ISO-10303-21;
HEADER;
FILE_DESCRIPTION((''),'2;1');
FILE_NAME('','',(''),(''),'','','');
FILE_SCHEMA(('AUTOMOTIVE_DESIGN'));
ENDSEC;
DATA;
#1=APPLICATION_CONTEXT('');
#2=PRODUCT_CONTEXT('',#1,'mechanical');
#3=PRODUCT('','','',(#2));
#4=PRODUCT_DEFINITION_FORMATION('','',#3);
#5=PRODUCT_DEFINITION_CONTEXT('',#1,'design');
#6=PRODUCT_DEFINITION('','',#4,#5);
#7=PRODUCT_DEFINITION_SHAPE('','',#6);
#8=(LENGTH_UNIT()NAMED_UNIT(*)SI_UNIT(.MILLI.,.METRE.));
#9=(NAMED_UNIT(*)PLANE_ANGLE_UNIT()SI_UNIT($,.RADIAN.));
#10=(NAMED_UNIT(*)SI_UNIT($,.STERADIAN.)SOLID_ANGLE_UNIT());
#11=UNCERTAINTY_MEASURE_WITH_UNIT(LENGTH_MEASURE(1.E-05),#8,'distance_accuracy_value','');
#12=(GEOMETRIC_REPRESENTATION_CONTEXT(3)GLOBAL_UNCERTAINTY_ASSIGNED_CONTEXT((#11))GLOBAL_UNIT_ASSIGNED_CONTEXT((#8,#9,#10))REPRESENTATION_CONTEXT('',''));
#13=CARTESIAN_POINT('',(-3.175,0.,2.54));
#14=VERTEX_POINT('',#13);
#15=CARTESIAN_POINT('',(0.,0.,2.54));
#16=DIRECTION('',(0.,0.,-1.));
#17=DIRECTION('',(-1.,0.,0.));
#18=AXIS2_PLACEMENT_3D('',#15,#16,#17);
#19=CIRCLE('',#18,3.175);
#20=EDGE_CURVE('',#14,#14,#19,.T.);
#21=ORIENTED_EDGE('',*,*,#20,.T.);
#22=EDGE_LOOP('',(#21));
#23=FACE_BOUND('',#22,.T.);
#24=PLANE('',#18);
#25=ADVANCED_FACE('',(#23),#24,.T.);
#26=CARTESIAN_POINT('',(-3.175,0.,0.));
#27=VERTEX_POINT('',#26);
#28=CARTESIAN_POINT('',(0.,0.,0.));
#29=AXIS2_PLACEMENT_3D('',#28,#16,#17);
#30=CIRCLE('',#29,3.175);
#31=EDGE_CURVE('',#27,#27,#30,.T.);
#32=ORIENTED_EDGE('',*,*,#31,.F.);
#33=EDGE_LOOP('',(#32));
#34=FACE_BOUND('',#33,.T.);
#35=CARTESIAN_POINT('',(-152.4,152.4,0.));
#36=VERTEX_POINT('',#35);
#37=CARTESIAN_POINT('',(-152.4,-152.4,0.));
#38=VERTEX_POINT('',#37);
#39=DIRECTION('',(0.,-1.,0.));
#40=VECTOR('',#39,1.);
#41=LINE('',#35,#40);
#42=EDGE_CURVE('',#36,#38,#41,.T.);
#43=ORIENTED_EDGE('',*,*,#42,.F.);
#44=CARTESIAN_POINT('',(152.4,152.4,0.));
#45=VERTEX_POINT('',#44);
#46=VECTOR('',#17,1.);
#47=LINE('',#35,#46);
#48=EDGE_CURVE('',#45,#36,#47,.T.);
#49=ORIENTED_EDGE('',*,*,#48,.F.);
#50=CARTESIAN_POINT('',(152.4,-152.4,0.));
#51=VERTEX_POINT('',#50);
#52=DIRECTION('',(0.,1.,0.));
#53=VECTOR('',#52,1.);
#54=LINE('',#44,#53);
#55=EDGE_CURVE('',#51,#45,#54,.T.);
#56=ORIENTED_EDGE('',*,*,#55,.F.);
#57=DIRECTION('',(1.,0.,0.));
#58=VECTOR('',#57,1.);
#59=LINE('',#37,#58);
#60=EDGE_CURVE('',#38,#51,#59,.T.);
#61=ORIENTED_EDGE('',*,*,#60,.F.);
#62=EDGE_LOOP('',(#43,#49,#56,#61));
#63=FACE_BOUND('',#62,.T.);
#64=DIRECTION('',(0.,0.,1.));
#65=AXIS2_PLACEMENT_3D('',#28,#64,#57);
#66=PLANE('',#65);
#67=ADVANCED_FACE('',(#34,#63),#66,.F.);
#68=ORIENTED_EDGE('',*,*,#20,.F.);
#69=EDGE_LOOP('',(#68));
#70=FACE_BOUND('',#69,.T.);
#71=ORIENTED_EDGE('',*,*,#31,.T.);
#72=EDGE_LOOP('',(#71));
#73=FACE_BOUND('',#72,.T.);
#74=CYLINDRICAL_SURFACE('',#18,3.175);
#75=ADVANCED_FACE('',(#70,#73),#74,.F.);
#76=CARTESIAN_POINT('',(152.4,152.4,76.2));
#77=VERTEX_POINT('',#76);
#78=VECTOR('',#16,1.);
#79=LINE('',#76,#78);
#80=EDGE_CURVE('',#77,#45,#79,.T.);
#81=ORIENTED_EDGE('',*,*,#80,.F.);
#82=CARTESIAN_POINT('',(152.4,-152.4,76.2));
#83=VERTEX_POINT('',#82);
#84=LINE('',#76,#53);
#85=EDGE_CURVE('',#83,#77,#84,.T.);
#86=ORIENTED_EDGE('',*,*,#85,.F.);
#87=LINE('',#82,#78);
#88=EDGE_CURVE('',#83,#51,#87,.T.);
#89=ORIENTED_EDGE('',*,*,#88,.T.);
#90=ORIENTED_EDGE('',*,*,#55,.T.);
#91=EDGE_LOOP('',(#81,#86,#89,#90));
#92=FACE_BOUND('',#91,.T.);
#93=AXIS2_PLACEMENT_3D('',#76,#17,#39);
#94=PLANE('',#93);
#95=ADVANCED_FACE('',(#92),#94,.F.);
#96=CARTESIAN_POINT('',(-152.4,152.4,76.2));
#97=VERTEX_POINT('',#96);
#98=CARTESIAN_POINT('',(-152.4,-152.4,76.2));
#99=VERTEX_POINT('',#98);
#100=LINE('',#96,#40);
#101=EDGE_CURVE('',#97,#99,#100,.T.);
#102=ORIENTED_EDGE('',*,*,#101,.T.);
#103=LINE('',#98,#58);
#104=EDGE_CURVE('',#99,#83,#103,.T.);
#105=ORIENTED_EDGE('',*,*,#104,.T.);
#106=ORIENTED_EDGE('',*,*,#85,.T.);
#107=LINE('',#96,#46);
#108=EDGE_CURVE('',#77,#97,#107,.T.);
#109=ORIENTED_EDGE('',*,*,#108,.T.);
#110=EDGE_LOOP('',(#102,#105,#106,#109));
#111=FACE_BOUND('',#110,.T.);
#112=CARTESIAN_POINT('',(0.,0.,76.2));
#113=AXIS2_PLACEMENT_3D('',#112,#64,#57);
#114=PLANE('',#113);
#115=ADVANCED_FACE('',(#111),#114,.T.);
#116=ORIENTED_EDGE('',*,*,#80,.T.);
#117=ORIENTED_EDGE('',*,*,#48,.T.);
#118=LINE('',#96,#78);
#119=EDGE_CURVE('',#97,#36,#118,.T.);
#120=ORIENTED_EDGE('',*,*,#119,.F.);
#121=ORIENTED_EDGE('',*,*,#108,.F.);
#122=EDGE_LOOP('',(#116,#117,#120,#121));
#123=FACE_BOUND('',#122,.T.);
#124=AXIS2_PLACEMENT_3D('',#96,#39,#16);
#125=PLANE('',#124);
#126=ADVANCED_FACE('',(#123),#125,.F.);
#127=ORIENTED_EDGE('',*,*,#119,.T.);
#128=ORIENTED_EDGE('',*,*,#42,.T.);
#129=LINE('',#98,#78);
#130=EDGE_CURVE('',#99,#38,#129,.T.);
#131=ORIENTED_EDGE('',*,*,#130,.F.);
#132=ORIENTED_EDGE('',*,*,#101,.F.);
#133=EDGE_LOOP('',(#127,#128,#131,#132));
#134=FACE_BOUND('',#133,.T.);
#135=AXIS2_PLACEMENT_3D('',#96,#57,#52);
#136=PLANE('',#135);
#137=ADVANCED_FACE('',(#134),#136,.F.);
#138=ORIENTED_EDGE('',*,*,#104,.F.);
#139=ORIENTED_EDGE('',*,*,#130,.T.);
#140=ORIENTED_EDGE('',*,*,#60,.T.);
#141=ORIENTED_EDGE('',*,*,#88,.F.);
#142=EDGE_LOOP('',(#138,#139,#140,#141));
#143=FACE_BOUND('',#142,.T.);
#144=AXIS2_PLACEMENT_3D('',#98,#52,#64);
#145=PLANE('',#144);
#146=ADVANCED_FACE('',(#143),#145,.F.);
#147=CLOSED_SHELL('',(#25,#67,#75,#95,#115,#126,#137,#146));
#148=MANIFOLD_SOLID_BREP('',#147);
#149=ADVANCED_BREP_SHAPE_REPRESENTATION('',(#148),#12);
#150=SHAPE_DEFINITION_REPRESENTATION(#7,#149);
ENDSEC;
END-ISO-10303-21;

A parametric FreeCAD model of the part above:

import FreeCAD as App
import Part
import Sketcher

V = App.Vector
Q = App.Units.Quantity

doc = App.newDocument("Part")
body = doc.addObject("PartDesign::Body", "Body")

# Sketch on XY plane
sketch1 = body.newObject("Sketcher::SketchObject", "Sketch")
sketch1.AttachmentSupport = (doc.getObject("XY_Plane"), [""])
sketch1.MapMode = "FlatFace"
sketch1.addGeometry([
    Part.LineSegment(V(-152, 152, 0), V(-152, -152, 0)),
    Part.LineSegment(V(-152, -152, 0), V(152, -152, 0)),
    Part.LineSegment(V(152, -152, 0), V(152, 152, 0)),
    Part.LineSegment(V(152, 152, 0), V(-152, 152, 0)),
], False)
sketch1.addConstraint([
    Sketcher.Constraint("Coincident", 0, 2, 1, 1),
    Sketcher.Constraint("Coincident", 1, 2, 2, 1),
    Sketcher.Constraint("Coincident", 2, 2, 3, 1),
    Sketcher.Constraint("Coincident", 3, 2, 0, 1),
    Sketcher.Constraint("Vertical", 0),
    Sketcher.Constraint("Horizontal", 1),
    Sketcher.Constraint("Vertical", 2),
    Sketcher.Constraint("Horizontal", 3),
    Sketcher.Constraint("Symmetric", 0, 2, 2, 2, -1, 1),
    Sketcher.Constraint("Equal", 3, 0),
    Sketcher.Constraint("DistanceX", 1, 1, 1, 2, Q("12 in")),
])
pad1 = body.newObject("PartDesign::Pad", "Pad")
pad1.Profile = sketch1
pad1.Length = Q("3 in")

# Sketch on XY plane
sketch2 = body.newObject("Sketcher::SketchObject", "Sketch001")
sketch2.AttachmentSupport = (doc.getObject("XY_Plane"), [""])
sketch2.MapMode = "FlatFace"
sketch2.addGeometry(Part.Circle(V(0, 0, 0), V(0, 0, 1), 3.2), False)
sketch2.addConstraint([
    Sketcher.Constraint("Coincident", 0, 3, -1, 1),
    Sketcher.Constraint("Diameter", 0, Q("0.25 in")),
])
pocket1 = body.newObject("PartDesign::Pocket", "Pocket")
pocket1.Profile = sketch2
pocket1.Length = Q("0.1 in")
pocket1.Reversed = True

doc.recompute()
